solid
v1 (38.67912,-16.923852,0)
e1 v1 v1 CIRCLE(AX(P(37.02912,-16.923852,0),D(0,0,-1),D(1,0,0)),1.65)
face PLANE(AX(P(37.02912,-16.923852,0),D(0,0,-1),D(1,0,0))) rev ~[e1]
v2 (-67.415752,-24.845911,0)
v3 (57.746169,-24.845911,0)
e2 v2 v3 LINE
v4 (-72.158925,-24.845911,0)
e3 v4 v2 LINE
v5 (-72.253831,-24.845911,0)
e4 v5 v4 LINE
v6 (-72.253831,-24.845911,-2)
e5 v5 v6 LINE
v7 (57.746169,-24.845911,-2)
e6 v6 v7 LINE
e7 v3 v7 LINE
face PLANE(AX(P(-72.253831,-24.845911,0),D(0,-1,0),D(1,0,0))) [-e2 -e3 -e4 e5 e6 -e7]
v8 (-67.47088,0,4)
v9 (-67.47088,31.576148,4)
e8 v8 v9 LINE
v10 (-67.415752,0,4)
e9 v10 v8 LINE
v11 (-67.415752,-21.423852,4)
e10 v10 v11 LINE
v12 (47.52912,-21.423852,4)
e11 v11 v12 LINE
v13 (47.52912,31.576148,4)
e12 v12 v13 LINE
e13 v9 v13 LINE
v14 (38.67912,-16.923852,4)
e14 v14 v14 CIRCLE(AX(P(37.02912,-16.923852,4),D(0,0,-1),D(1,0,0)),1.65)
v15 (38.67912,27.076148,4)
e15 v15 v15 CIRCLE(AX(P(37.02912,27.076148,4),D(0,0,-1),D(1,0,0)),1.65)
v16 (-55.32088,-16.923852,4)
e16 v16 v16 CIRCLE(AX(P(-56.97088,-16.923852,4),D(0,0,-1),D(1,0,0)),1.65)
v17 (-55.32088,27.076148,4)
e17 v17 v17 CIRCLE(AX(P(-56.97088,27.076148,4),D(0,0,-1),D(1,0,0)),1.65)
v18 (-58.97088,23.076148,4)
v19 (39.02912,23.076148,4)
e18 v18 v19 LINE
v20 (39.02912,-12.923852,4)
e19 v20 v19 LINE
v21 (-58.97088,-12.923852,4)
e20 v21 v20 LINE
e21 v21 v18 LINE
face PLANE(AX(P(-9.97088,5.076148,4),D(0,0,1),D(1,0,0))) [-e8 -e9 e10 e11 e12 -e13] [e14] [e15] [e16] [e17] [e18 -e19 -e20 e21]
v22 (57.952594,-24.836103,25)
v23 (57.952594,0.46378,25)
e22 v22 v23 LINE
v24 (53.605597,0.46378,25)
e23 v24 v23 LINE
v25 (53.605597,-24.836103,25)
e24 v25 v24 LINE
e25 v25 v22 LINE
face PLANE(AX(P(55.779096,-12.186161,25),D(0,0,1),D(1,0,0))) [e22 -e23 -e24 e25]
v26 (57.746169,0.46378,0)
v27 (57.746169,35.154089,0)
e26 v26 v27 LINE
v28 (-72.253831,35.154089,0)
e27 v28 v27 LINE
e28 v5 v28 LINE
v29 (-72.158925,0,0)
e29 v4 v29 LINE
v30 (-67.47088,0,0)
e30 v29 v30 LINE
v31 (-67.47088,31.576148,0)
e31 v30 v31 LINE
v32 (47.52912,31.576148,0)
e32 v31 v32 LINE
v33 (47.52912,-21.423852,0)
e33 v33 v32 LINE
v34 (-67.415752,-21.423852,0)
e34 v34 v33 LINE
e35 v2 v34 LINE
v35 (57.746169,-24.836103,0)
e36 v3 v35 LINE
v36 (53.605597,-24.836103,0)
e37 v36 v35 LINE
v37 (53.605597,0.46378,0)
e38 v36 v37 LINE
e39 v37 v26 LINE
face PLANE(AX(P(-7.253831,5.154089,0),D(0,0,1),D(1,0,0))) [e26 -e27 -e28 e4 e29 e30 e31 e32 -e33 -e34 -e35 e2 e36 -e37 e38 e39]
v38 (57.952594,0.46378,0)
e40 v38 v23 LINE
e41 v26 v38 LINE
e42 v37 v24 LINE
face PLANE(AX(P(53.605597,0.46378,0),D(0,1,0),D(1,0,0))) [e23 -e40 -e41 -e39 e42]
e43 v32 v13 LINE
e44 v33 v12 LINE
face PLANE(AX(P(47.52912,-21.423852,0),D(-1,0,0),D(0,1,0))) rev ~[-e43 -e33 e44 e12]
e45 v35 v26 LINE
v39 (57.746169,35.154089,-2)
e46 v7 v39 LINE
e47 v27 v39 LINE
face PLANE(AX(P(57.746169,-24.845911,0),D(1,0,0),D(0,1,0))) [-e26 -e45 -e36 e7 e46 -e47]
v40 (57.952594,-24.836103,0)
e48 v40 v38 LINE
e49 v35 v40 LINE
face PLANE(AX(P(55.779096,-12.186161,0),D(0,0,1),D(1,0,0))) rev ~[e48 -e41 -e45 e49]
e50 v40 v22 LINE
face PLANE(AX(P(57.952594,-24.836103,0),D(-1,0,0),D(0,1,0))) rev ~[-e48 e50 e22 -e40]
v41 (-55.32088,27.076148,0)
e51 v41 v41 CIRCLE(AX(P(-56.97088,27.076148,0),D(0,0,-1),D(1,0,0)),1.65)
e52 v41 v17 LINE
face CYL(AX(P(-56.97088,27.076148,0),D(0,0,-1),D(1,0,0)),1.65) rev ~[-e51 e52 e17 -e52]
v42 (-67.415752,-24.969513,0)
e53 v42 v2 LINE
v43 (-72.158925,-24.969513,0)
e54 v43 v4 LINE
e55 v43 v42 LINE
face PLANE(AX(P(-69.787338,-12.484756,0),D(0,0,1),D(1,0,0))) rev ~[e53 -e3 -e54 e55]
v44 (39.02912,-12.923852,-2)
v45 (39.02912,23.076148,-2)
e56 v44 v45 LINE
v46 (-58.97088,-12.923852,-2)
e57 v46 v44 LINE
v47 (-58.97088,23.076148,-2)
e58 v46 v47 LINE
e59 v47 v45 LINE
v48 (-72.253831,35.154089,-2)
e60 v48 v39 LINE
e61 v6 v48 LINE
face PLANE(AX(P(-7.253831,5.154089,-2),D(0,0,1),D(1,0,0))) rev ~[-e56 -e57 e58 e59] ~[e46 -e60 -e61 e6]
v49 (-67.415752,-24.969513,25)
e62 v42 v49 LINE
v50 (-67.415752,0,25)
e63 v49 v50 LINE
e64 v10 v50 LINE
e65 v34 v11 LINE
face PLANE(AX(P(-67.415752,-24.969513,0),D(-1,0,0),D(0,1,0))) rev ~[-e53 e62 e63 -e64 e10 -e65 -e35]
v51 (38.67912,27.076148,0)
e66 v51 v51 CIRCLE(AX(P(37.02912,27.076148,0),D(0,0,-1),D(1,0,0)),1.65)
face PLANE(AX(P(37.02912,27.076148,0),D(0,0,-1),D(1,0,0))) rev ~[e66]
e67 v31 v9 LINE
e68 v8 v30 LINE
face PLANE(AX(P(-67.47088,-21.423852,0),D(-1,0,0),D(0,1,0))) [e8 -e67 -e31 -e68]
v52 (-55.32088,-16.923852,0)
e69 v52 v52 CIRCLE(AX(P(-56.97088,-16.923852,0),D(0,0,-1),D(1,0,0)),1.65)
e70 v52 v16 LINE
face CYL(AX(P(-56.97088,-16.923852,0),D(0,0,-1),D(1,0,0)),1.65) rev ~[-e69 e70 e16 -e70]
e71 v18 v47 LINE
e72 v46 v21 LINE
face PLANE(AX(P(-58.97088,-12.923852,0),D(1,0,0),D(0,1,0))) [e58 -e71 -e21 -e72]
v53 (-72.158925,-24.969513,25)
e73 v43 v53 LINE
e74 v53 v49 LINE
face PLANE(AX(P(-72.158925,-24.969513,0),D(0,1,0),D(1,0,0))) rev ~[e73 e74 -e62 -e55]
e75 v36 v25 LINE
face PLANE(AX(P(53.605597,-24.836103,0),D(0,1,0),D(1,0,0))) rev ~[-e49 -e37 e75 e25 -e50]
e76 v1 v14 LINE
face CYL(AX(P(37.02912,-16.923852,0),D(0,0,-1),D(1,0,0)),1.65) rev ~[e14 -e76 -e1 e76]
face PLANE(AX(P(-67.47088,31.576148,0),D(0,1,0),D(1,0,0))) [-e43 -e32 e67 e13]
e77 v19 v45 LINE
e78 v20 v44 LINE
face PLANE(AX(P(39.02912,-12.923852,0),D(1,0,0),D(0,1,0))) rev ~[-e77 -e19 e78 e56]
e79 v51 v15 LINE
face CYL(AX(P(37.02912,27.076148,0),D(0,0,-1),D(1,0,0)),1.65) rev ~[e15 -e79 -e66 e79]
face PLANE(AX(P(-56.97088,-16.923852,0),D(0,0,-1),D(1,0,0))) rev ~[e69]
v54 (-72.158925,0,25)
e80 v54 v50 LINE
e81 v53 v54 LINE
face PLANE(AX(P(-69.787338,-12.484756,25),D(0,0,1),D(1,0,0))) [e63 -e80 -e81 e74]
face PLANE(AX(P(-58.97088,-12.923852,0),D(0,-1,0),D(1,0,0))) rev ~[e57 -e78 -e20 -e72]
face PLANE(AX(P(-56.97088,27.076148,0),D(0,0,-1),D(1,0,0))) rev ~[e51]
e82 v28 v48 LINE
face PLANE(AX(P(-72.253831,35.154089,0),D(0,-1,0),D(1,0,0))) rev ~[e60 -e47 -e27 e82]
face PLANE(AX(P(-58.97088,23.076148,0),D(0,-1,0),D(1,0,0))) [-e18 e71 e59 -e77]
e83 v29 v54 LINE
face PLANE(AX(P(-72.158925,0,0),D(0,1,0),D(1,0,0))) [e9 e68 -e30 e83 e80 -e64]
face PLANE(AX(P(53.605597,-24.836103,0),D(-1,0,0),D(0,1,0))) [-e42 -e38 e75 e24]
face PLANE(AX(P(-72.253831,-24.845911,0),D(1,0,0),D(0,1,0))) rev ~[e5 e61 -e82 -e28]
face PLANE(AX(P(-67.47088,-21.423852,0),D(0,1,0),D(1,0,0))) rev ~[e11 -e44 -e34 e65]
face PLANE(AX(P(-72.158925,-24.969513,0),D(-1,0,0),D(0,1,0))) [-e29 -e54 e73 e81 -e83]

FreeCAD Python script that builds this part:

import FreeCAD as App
import Part
import Sketcher

V = App.Vector
Q = App.Units.Quantity


def add_polygon(sketch, points):
    """Adds a closed chain of lines whose ends are joined by coincident constraints."""
    first, n = sketch.GeometryCount, len(points)
    for a, b in zip(points, points[1:] + points[:1]):
        sketch.addGeometry(Part.LineSegment(App.Vector(*a, 0), App.Vector(*b, 0)), False)
    for i in range(n):
        sketch.addConstraint(Sketcher.Constraint("Coincident", first + i, 2, first + (i + 1) % n, 1))

doc = App.newDocument("Part")
body = doc.addObject("PartDesign::Body", "Body")

# Sketch on XY plane
sketch1 = body.newObject("Sketcher::SketchObject", "Sketch")
sketch1.AttachmentSupport = (doc.getObject("XY_Plane"), [""])
sketch1.MapMode = "FlatFace"
add_polygon(sketch1, [(-67.47088, 31.576148), (-67.47088, -21.423852), (47.52912, -21.423852), (47.52912, 31.576148)])  # lines 0-3
add_polygon(sketch1, [(39.02912, -12.923852), (-58.97088, -12.923852), (-58.97088, 23.076148), (39.02912, 23.076148)])  # lines 4-7
sketch1.addConstraint([
    Sketcher.Constraint("Vertical", 0),
    Sketcher.Constraint("Horizontal", 1),
    Sketcher.Constraint("Vertical", 2),
    Sketcher.Constraint("Horizontal", 3),
    Sketcher.Constraint("Horizontal", 4),
    Sketcher.Constraint("Vertical", 5),
    Sketcher.Constraint("Horizontal", 6),
    Sketcher.Constraint("Vertical", 7),
    Sketcher.Constraint("DistanceX", 1, 1, 1, 2, Q("115 mm")),
    Sketcher.Constraint("DistanceX", 4, 2, 4, 1, Q("98 mm")),
    Sketcher.Constraint("DistanceY", 0, 2, 0, 1, Q("53 mm")),
    Sketcher.Constraint("DistanceY", 5, 1, 5, 2, Q("36 mm")),
    Sketcher.Constraint("DistanceX", 0, 2, 4, 2, Q("8.5 mm")),
    Sketcher.Constraint("DistanceY", 0, 2, 4, 2, Q("8.5 mm")),
    Sketcher.Constraint("DistanceX", 0, 2, -1, 1, Q("67.47088 mm")),
    Sketcher.Constraint("DistanceY", 0, 2, -1, 1, Q("21.423852 mm")),
])
pad1 = body.newObject("PartDesign::Pad", "Pad")
pad1.Profile = sketch1
pad1.Length = 4

# Sketch on XY plane
sketch2 = body.newObject("Sketcher::SketchObject", "Sketch001")
sketch2.AttachmentSupport = (doc.getObject("XY_Plane"), [""])
sketch2.MapMode = "FlatFace"
add_polygon(sketch2, [(-72.253831, 35.154089), (-72.253831, -24.845911), (57.746169, -24.845911), (57.746169, 35.154089)])  # lines 0-3
sketch2.addConstraint([
    Sketcher.Constraint("Vertical", 0),
    Sketcher.Constraint("Horizontal", 1),
    Sketcher.Constraint("Vertical", 2),
    Sketcher.Constraint("Horizontal", 3),
    Sketcher.Constraint("DistanceX", 1, 1, 1, 2, Q("130 mm")),
    Sketcher.Constraint("DistanceY", 0, 2, 0, 1, Q("60 mm")),
    Sketcher.Constraint("DistanceX", 0, 2, -1, 1, Q("72.253831 mm")),
    Sketcher.Constraint("DistanceY", 0, 2, -1, 1, Q("24.845911 mm")),
])
pad2 = body.newObject("PartDesign::Pad", "Pad001")
pad2.Profile = sketch2
pad2.Length = 2
pad2.Reversed = True

# Sketch on XY plane
sketch3 = body.newObject("Sketcher::SketchObject", "Sketch002")
sketch3.AttachmentSupport = (doc.getObject("XY_Plane"), [""])
sketch3.MapMode = "FlatFace"
add_polygon(sketch3, [(-58.97088, 23.076148), (-58.97088, -12.923852), (39.02912, -12.923852), (39.02912, 23.076148)])  # lines 0-3
sketch3.addConstraint([
    Sketcher.Constraint("Vertical", 0),
    Sketcher.Constraint("Horizontal", 1),
    Sketcher.Constraint("Vertical", 2),
    Sketcher.Constraint("Horizontal", 3),
    Sketcher.Constraint("DistanceX", 1, 1, 1, 2, Q("98 mm")),
    Sketcher.Constraint("DistanceY", 0, 2, 0, 1, Q("36 mm")),
    Sketcher.Constraint("DistanceX", 0, 2, -1, 1, Q("58.97088 mm")),
    Sketcher.Constraint("DistanceY", 0, 2, -1, 1, Q("12.923852 mm")),
])
pocket1 = body.newObject("PartDesign::Pocket", "Pocket")
pocket1.Profile = sketch3
pocket1.Type = "ThroughAll"

# Sketch on XY plane
sketch4 = body.newObject("Sketcher::SketchObject", "Sketch003")
sketch4.AttachmentSupport = (doc.getObject("XY_Plane"), [""])
sketch4.MapMode = "FlatFace"
sketch4.addGeometry([
    Part.Circle(V(37.02912, 27.076148, 0), V(0, 0, 1), 1.65),
    Part.Circle(V(-56.97088, 27.076148, 0), V(0, 0, 1), 1.65),
    Part.Circle(V(-56.97088, -16.923852, 0), V(0, 0, 1), 1.65),
    Part.Circle(V(37.02912, -16.923852, 0), V(0, 0, 1), 1.65),
], False)
sketch4.addConstraint([
    Sketcher.Constraint("Equal", 0, 1),
    Sketcher.Constraint("Equal", 1, 2),
    Sketcher.Constraint("Equal", 2, 3),
    Sketcher.Constraint("Horizontal", 0, 3, 1, 3),
    Sketcher.Constraint("Horizontal", 2, 3, 3, 3),
    Sketcher.Constraint("Vertical", 1, 3, 2, 3),
    Sketcher.Constraint("Vertical", 0, 3, 3, 3),
    Sketcher.Constraint("Diameter", 0, Q("3.3 mm")),
    Sketcher.Constraint("DistanceX", 1, 3, 0, 3, Q("94 mm")),
    Sketcher.Constraint("DistanceY", 2, 3, 1, 3, Q("44 mm")),
    Sketcher.Constraint("DistanceX", -1, 1, 0, 3, Q("37.02912 mm")),
    Sketcher.Constraint("DistanceY", -1, 1, 0, 3, Q("27.076148 mm")),
])
pocket2 = body.newObject("PartDesign::Pocket", "Pocket001")
pocket2.Profile = sketch4
pocket2.Type = "ThroughAll"
pocket2.Reversed = True

# Sketch on XY plane
sketch5 = body.newObject("Sketcher::SketchObject", "Sketch004")
sketch5.AttachmentSupport = (doc.getObject("XY_Plane"), [""])
sketch5.MapMode = "FlatFace"
add_polygon(sketch5, [(53.605597, 0.46378), (53.605597, -24.836103), (57.952594, -24.836103), (57.952594, 0.46378)])  # lines 0-3
add_polygon(sketch5, [(-72.158925, 0), (-72.158925, -24.969513), (-67.415752, -24.969513), (-67.415752, 0)])  # lines 4-7
sketch5.addConstraint([
    Sketcher.Constraint("Vertical", 0),
    Sketcher.Constraint("Horizontal", 1),
    Sketcher.Constraint("Vertical", 2),
    Sketcher.Constraint("Horizontal", 3),
    Sketcher.Constraint("Vertical", 4),
    Sketcher.Constraint("Horizontal", 5),
    Sketcher.Constraint("Vertical", 6),
    Sketcher.Constraint("Horizontal", 7),
    Sketcher.Constraint("PointOnObject", 6, 2, -1),
    Sketcher.Constraint("DistanceX", 1, 1, 1, 2, Q("4.346997 mm")),
    Sketcher.Constraint("DistanceX", 5, 1, 5, 2, Q("4.743174 mm")),
    Sketcher.Constraint("DistanceY", 0, 2, 0, 1, Q("25.299883 mm")),
    Sketcher.Constraint("DistanceY", 4, 2, 4, 1, Q("24.969513 mm")),
    Sketcher.Constraint("DistanceY", -1, 1, 2, 2, Q("0.46378 mm")),
    Sketcher.Constraint("DistanceX", 5, 2, -1, 1, Q("67.415752 mm")),
    Sketcher.Constraint("DistanceX", 4, 2, 1, 2, Q("130.111519 mm")),
])
pad3 = body.newObject("PartDesign::Pad", "Pad002")
pad3.Profile = sketch5
pad3.Length = 25

doc.recompute()
